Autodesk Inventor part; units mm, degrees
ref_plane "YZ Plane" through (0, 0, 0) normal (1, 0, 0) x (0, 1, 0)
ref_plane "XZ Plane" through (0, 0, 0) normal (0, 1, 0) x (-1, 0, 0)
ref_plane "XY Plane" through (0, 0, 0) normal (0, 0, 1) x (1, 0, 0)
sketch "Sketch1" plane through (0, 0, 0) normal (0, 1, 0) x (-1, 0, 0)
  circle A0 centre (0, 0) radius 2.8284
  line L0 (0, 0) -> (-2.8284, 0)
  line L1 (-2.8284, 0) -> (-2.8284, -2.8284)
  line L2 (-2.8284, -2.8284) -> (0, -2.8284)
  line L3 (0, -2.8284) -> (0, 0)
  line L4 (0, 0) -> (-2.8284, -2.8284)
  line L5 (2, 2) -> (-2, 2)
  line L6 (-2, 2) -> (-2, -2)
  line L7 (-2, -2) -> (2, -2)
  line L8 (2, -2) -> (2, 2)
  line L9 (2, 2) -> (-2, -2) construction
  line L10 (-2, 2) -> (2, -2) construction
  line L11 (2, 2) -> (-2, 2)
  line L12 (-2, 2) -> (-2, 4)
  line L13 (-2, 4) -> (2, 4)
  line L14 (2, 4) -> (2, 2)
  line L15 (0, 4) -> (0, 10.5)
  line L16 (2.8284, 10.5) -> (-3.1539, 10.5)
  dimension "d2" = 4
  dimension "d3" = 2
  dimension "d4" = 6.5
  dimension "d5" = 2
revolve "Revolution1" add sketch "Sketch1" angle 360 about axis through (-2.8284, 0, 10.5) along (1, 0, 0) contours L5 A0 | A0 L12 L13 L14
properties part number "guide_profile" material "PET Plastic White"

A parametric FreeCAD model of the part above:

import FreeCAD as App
import Part
import Sketcher

V = App.Vector
Q = App.Units.Quantity


def add_polygon(sketch, points):
    """Adds a closed chain of lines whose ends are joined by coincident constraints."""
    first, n = sketch.GeometryCount, len(points)
    for a, b in zip(points, points[1:] + points[:1]):
        sketch.addGeometry(Part.LineSegment(App.Vector(*a, 0), App.Vector(*b, 0)), False)
    for i in range(n):
        sketch.addConstraint(Sketcher.Constraint("Coincident", first + i, 2, first + (i + 1) % n, 1))

doc = App.newDocument("Part")
params = doc.addObject("Spreadsheet::Sheet", "Params")
for row, (alias, value) in enumerate([
    ("sketch1_width", "4 mm"),
    ("sketch1_height", "2 mm"),
    ("revolution_angle", "360 deg"),
], start=1):
    params.set(f"A{row}", alias)
    params.set(f"B{row}", "=" + value)
    params.setAlias(f"B{row}", alias)

body = doc.addObject("PartDesign::Body", "Body")

# Sketch on XZ plane
sketch1 = doc.addObject("Sketcher::SketchObject", "Sketch")
body.addObject(sketch1)
sketch1.AttachmentSupport = (doc.XZ_Plane, [""])
sketch1.MapMode = "FlatFace"
add_polygon(sketch1, [(2, 2), (-2, 2), (-2, 4), (2, 4)])  # lines 0-3
sketch1.addGeometry(Part.LineSegment(V(-2, 10.5, 0), V(2, 10.5, 0)), True)  # axis
sketch1.addConstraint(Sketcher.Constraint("Horizontal", 0))
sketch1.addConstraint(Sketcher.Constraint("Vertical", 1))
sketch1.addConstraint(Sketcher.Constraint("Horizontal", 2))
sketch1.addConstraint(Sketcher.Constraint("Vertical", 3))
sketch1.addConstraint(Sketcher.Constraint("Horizontal", 4))
sketch1.addConstraint(Sketcher.Constraint("Vertical", 1, 2, 4, 1))
sketch1.addConstraint(Sketcher.Constraint("Vertical", 3, 2, 4, 2))
sketch1.addConstraint(Sketcher.Constraint("DistanceX", 0, 2, 0, 1, Q("4 mm")))
sketch1.addConstraint(Sketcher.Constraint("DistanceY", 1, 1, 1, 2, Q("2 mm")))
sketch1.addConstraint(Sketcher.Constraint("DistanceX", 0, 2, -1, 1, Q("2 mm")))
sketch1.addConstraint(Sketcher.Constraint("DistanceY", -1, 1, 0, 2, Q("2 mm")))
sketch1.addConstraint(Sketcher.Constraint("DistanceY", 1, 2, 4, 1, Q("6.5 mm")))
sketch1.setExpression("Constraints[11]", "Params.sketch1_width")
sketch1.setExpression("Constraints[12]", "Params.sketch1_height")
revolution = doc.addObject("PartDesign::Revolution", "Revolution")
body.addObject(revolution)
revolution.Profile = sketch1
revolution.ReferenceAxis = (sketch1, ["Axis0"])
revolution.setExpression("Angle", "Params.revolution_angle")

doc.recompute()
